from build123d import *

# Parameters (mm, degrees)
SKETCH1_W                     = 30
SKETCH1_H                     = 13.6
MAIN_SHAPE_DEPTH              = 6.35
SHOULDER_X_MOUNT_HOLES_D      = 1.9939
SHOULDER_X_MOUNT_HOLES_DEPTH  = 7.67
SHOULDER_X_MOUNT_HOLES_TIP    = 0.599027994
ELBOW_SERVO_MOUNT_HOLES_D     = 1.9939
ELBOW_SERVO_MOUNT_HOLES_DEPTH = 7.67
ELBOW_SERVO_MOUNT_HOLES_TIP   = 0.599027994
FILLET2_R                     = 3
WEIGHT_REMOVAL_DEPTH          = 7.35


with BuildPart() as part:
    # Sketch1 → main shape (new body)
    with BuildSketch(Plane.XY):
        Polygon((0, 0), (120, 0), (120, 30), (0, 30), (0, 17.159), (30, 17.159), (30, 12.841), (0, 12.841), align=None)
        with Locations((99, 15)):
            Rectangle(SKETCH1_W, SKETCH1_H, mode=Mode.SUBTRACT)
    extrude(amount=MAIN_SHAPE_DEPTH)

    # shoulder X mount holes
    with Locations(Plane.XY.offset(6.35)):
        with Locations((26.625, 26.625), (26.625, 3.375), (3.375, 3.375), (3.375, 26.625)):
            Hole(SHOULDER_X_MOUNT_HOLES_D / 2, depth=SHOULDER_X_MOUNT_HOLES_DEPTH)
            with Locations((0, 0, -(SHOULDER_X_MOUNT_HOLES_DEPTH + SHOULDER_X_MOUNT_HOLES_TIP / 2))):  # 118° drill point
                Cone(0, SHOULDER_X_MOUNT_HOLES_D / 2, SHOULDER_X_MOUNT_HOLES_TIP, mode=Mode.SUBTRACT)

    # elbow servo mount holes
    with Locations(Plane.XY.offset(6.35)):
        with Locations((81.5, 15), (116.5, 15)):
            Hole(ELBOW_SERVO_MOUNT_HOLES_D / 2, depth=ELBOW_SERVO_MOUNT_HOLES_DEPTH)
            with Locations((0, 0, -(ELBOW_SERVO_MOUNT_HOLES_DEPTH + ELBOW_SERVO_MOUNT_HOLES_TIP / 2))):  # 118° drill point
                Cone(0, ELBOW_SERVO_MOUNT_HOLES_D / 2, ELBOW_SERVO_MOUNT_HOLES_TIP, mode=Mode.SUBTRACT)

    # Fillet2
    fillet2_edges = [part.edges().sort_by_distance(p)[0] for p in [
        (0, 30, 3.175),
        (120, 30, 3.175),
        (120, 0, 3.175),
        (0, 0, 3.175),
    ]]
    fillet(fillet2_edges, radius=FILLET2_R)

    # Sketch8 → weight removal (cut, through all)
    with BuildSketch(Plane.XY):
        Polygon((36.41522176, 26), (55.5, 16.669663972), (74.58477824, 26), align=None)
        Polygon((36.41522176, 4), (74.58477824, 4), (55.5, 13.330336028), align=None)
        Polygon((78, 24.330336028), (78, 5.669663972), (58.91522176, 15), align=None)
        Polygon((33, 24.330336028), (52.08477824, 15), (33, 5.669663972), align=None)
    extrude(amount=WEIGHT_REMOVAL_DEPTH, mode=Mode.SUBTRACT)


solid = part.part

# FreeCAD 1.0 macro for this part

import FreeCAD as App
import Part
import Sketcher
Q = App.Units.Quantity


def edges_at(feature, points):
    """Names of the edges that pass closest to the given points."""
    edges = feature.Shape.Edges
    near = lambda p: min(range(len(edges)), key=lambda i: edges[i].distToShape(Part.Vertex(*p))[0])
    return sorted({f"Edge{near(p) + 1}" for p in points})


def add_polygon(sketch, points):
    """Adds a closed chain of lines whose ends are joined by coincident constraints."""
    first, n = sketch.GeometryCount, len(points)
    for a, b in zip(points, points[1:] + points[:1]):
        sketch.addGeometry(Part.LineSegment(App.Vector(*a, 0), App.Vector(*b, 0)), False)
    for i in range(n):
        sketch.addConstraint(Sketcher.Constraint("Coincident", first + i, 2, first + (i + 1) % n, 1))

doc = App.newDocument("Part")
body = doc.addObject("PartDesign::Body", "Body")

sketch1 = body.newObject("Sketcher::SketchObject", "Sketch")
sketch1.AttachmentSupport = (doc.getObject("XY_Plane"), [""])
sketch1.MapMode = "FlatFace"
add_polygon(sketch1, [(0, 0), (120, 0), (120, 30), (0, 30), (0, 17.159), (30, 17.159), (30, 12.841), (0, 12.841)])
add_polygon(sketch1, [(114, 8.2), (84, 8.2), (84, 21.8), (114, 21.8)])
sketch1.addConstraint([
    Sketcher.Constraint("Horizontal", 0),
    Sketcher.Constraint("Vertical", 1),
    Sketcher.Constraint("Horizontal", 2),
    Sketcher.Constraint("Vertical", 3),
    Sketcher.Constraint("Horizontal", 4),
    Sketcher.Constraint("Vertical", 5),
    Sketcher.Constraint("Horizontal", 6),
    Sketcher.Constraint("Vertical", 7),
    Sketcher.Constraint("Horizontal", 8),
    Sketcher.Constraint("Vertical", 9),
    Sketcher.Constraint("Horizontal", 10),
    Sketcher.Constraint("Vertical", 11),
    Sketcher.Constraint("Coincident", 7, 2, -1, 1),
    Sketcher.Constraint("PointOnObject", 2, 2, -2),
    Sketcher.Constraint("Equal", 6, 8),
    Sketcher.Constraint("Equal", 10, 1),
    Sketcher.Constraint("Equal", 3, 7),
    Sketcher.Constraint("DistanceX", 0, 1, 0, 2, Q("120 mm")),
    Sketcher.Constraint("DistanceX", 4, 1, 4, 2, Q("30 mm")),
    Sketcher.Constraint("DistanceY", 9, 1, 9, 2, Q("13.6 mm")),
    Sketcher.Constraint("DistanceX", -1, 1, 8, 2, Q("84 mm")),
    Sketcher.Constraint("DistanceY", -1, 1, 8, 2, Q("8.2 mm")),
    Sketcher.Constraint("DistanceY", 3, 2, 3, 1, Q("12.841 mm")),
])
pad1 = body.newObject("PartDesign::Pad", "Pad")
pad1.Profile = sketch1
pad1.Length = 6.35

sketch2 = body.newObject("Sketcher::SketchObject", "Sketch001")
sketch2.AttachmentSupport = (doc.getObject("XY_Plane"), [""])
sketch2.MapMode = "FlatFace"
sketch2.AttachmentOffset = App.Placement(App.Vector(0, 0, 6.35), App.Rotation())
sketch2.addGeometry([
    Part.Circle(App.Vector(26.625, 26.625, 0), App.Vector(0, 0, 1), 0.99695),
    Part.Circle(App.Vector(26.625, 3.375, 0), App.Vector(0, 0, 1), 0.99695),
    Part.Circle(App.Vector(3.375, 3.375, 0), App.Vector(0, 0, 1), 0.99695),
    Part.Circle(App.Vector(3.375, 26.625, 0), App.Vector(0, 0, 1), 0.99695),
], False)
sketch2.addConstraint([
    Sketcher.Constraint("Equal", 0, 1),
    Sketcher.Constraint("Equal", 1, 2),
    Sketcher.Constraint("Equal", 2, 3),
    Sketcher.Constraint("Horizontal", 1, 3, 2, 3),
    Sketcher.Constraint("Horizontal", 0, 3, 3, 3),
    Sketcher.Constraint("Vertical", 0, 3, 1, 3),
    Sketcher.Constraint("Vertical", 2, 3, 3, 3),
    Sketcher.Constraint("Diameter", 0, Q("1.9939 mm")),
    Sketcher.Constraint("DistanceY", 1, 3, 0, 3, Q("23.25 mm")),
    Sketcher.Constraint("DistanceX", 2, 3, 1, 3, Q("23.25 mm")),
    Sketcher.Constraint("DistanceX", -1, 1, 0, 3, Q("26.625 mm")),
    Sketcher.Constraint("DistanceY", -1, 1, 0, 3, Q("26.625 mm")),
])
doc.recompute()
hole = body.newObject("PartDesign::Hole", "Hole")
hole.Profile = sketch2
hole.ThreadType = "None"
hole.Diameter = 1.9939
hole.DepthType = "Dimension"
hole.Depth = 7.67
hole.DrillPoint = "Angled"
hole.DrillPointAngle = 118

sketch3 = body.newObject("Sketcher::SketchObject", "Sketch002")
sketch3.AttachmentSupport = (doc.getObject("XY_Plane"), [""])
sketch3.MapMode = "FlatFace"
sketch3.AttachmentOffset = App.Placement(App.Vector(0, 0, 6.35), App.Rotation())
sketch3.addGeometry([
    Part.Circle(App.Vector(81.5, 15, 0), App.Vector(0, 0, 1), 0.99695),
    Part.Circle(App.Vector(116.5, 15, 0), App.Vector(0, 0, 1), 0.99695),
], False)
sketch3.addConstraint([
    Sketcher.Constraint("Equal", 0, 1),
    Sketcher.Constraint("Horizontal", 0, 3, 1, 3),
    Sketcher.Constraint("DistanceY", -1, 1, 0, 3, Q("15 mm")),
    Sketcher.Constraint("DistanceX", 0, 3, 1, 3, Q("35 mm")),
    Sketcher.Constraint("Diameter", 0, Q("1.9939 mm")),
    Sketcher.Constraint("DistanceX", -1, 1, 0, 3, Q("81.5 mm")),
])
doc.recompute()
hole2 = body.newObject("PartDesign::Hole", "Hole001")
hole2.Profile = sketch3
hole2.ThreadType = "None"
hole2.Diameter = 1.9939
hole2.DepthType = "Dimension"
hole2.Depth = 7.67
hole2.DrillPoint = "Angled"
hole2.DrillPointAngle = 118
doc.recompute()

fillet = body.newObject("PartDesign::Fillet", "Fillet")
fillet.Base = (hole2, edges_at(hole2, [
    (0, 30, 3.175),
    (120, 30, 3.175),
    (120, 0, 3.175),
    (0, 0, 3.175),
]))
fillet.Radius = 3

sketch4 = body.newObject("Sketcher::SketchObject", "Sketch003")
sketch4.AttachmentSupport = (doc.getObject("XY_Plane"), [""])
sketch4.MapMode = "FlatFace"
add_polygon(sketch4, [(36.415222, 26), (55.5, 16.669664), (74.584778, 26)])
add_polygon(sketch4, [(36.415222, 4), (74.584778, 4), (55.5, 13.330336)])
add_polygon(sketch4, [(78, 5.669664), (78, 24.330336), (58.915222, 15)])
add_polygon(sketch4, [(52.084778, 15), (33, 24.330336), (33, 5.669664)])
sketch4.addConstraint([
    Sketcher.Constraint("Horizontal", 2),
    Sketcher.Constraint("Horizontal", 3),
    Sketcher.Constraint("Vertical", 6),
    Sketcher.Constraint("Vertical", 10),
    Sketcher.Constraint("Parallel", 0, 4),
    Sketcher.Constraint("Parallel", 1, 5),
    Sketcher.Constraint("Parallel", 5, 7),
    Sketcher.Constraint("Parallel", 4, 8),
    Sketcher.Constraint("Parallel", 8, 9),
    Sketcher.Constraint("Parallel", 7, 11),
    Sketcher.Constraint("Horizontal", 6, 2, 9, 2),
    Sketcher.Constraint("Horizontal", 8, 2, 10, 2),
    Sketcher.Constraint("Horizontal", 7, 2, 11, 2),
    Sketcher.Constraint("Vertical", 1, 2, 3, 2),
    Sketcher.Constraint("Vertical", 0, 2, 4, 2),
    Sketcher.Constraint("Equal", 5, 7),
    Sketcher.Constraint("DistanceY", -1, 1, 1, 2, Q("26 mm")),
    Sketcher.Constraint("DistanceY", -1, 1, 3, 2, Q("4 mm")),
    Sketcher.Constraint("DistanceX", -1, 1, 6, 2, Q("78 mm")),
    Sketcher.Constraint("DistanceY", -1, 1, 7, 2, Q("15 mm")),
    Sketcher.Constraint("DistanceX", -1, 1, 9, 2, Q("33 mm")),
    Sketcher.Constraint("DistanceX", -1, 1, 0, 2, Q("55.5 mm")),
    Sketcher.Constraint("DistanceX", 2, 2, 2, 1, Q("38.169556 mm")),
    Sketcher.Constraint("DistanceY", 6, 1, 6, 2, Q("18.660672 mm")),
])
pocket1 = body.newObject("PartDesign::Pocket", "Pocket")
pocket1.Profile = sketch4
pocket1.Type = "ThroughAll"
pocket1.Reversed = True

doc.recompute()
